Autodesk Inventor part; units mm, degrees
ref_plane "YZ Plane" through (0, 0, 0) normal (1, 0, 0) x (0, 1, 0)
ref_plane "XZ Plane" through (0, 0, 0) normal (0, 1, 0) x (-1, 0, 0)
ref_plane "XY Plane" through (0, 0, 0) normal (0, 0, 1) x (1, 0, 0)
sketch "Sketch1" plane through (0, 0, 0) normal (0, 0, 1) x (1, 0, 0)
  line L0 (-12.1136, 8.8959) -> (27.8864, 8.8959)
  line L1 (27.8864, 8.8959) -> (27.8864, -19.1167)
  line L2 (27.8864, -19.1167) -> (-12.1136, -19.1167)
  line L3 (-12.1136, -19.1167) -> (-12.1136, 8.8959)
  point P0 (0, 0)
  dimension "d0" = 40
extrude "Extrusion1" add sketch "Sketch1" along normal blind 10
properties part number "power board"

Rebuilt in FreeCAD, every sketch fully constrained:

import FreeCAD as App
import Part
import Sketcher
Q = App.Units.Quantity


def add_polygon(sketch, points):
    """Adds a closed chain of lines whose ends are joined by coincident constraints."""
    first, n = sketch.GeometryCount, len(points)
    for a, b in zip(points, points[1:] + points[:1]):
        sketch.addGeometry(Part.LineSegment(App.Vector(*a, 0), App.Vector(*b, 0)), False)
    for i in range(n):
        sketch.addConstraint(Sketcher.Constraint("Coincident", first + i, 2, first + (i + 1) % n, 1))

doc = App.newDocument("Part")
body = doc.addObject("PartDesign::Body", "Body")

# Sketch on XY plane
sketch1 = doc.addObject("Sketcher::SketchObject", "Sketch")
body.addObject(sketch1)
sketch1.AttachmentSupport = (doc.XY_Plane, [""])
sketch1.MapMode = "FlatFace"
add_polygon(sketch1, [(28, 9), (-12, 9), (-12, -19), (28, -19)])  # lines 0-3
sketch1.addConstraint(Sketcher.Constraint("Horizontal", 0))
sketch1.addConstraint(Sketcher.Constraint("Vertical", 1))
sketch1.addConstraint(Sketcher.Constraint("Horizontal", 2))
sketch1.addConstraint(Sketcher.Constraint("Vertical", 3))
sketch1.addConstraint(Sketcher.Constraint("DistanceX", 0, 2, 0, 1, Q("40 mm")))
sketch1.addConstraint(Sketcher.Constraint("DistanceY", 1, 2, 1, 1, Q("28.0126 mm")))
sketch1.addConstraint(Sketcher.Constraint("DistanceY", -1, 1, 0, 2, Q("8.896 mm")))
sketch1.addConstraint(Sketcher.Constraint("DistanceX", 0, 2, -1, 1, Q("12.1136 mm")))
pad1 = doc.addObject("PartDesign::Pad", "Pad")
body.addObject(pad1)
pad1.Profile = sketch1
pad1.Length = 10

doc.recompute()
